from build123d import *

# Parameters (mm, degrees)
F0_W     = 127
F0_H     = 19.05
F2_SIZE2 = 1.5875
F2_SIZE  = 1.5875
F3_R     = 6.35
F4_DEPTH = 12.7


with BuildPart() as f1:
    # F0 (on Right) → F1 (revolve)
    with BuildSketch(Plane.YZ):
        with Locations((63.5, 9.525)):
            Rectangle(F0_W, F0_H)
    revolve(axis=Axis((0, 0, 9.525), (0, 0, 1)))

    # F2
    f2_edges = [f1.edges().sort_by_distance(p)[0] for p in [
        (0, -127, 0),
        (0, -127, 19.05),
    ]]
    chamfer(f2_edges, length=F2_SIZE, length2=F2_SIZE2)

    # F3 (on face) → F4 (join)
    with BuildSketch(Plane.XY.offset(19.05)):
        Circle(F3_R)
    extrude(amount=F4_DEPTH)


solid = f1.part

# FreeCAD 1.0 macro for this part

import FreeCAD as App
import Part
import Sketcher
Q = App.Units.Quantity


def edges_at(feature, points):
    """Names of the edges that pass closest to the given points."""
    edges = feature.Shape.Edges
    near = lambda p: min(range(len(edges)), key=lambda i: edges[i].distToShape(Part.Vertex(*p))[0])
    return sorted({f"Edge{near(p) + 1}" for p in points})

doc = App.newDocument("Part")
body = doc.addObject("PartDesign::Body", "Body")

# Sketch on YZ plane
sketch1 = body.newObject("Sketcher::SketchObject", "Sketch")
sketch1.AttachmentSupport = (doc.getObject("YZ_Plane"), [""])
sketch1.MapMode = "FlatFace"
sketch1.addGeometry(Part.LineSegment(App.Vector(0, 19, 0), App.Vector(0, 0, 0)), False)
sketch1.addGeometry(Part.LineSegment(App.Vector(0, 0, 0), App.Vector(127, 0, 0)), False)
sketch1.addGeometry(Part.LineSegment(App.Vector(127, 0, 0), App.Vector(127, 19, 0)), False)
sketch1.addGeometry(Part.LineSegment(App.Vector(127, 19, 0), App.Vector(0, 19, 0)), False)
sketch1.addConstraint(Sketcher.Constraint("Coincident", 0, 2, 1, 1))
sketch1.addConstraint(Sketcher.Constraint("Coincident", 1, 2, 2, 1))
sketch1.addConstraint(Sketcher.Constraint("Coincident", 2, 2, 3, 1))
sketch1.addConstraint(Sketcher.Constraint("Coincident", 3, 2, 0, 1))
sketch1.addConstraint(Sketcher.Constraint("Vertical", 0))
sketch1.addConstraint(Sketcher.Constraint("Horizontal", 1))
sketch1.addConstraint(Sketcher.Constraint("Vertical", 2))
sketch1.addConstraint(Sketcher.Constraint("Horizontal", 3))
sketch1.addConstraint(Sketcher.Constraint("Coincident", 0, 2, -1, 1))
sketch1.addConstraint(Sketcher.Constraint("DistanceX", 1, 1, 1, 2, Q("5 in")))
sketch1.addConstraint(Sketcher.Constraint("DistanceY", 0, 2, 0, 1, Q("0.75 in")))
revolution = body.newObject("PartDesign::Revolution", "Revolution")
revolution.Profile = sketch1
revolution.ReferenceAxis = (sketch1, ["V_Axis"])
revolution.Angle = 360
doc.recompute()

chamfer = body.newObject("PartDesign::Chamfer", "Chamfer")
chamfer.Base = (revolution, edges_at(revolution, [(0, -127, 0), (0, -127, 19.05)]))
chamfer.ChamferType = "Two distances"
chamfer.Size = Q("0.0625 in")
chamfer.Size2 = Q("0.0625 in")

# Sketch on XY plane
sketch2 = body.newObject("Sketcher::SketchObject", "Sketch001")
sketch2.AttachmentSupport = (doc.getObject("XY_Plane"), [""])
sketch2.MapMode = "FlatFace"
sketch2.AttachmentOffset = App.Placement(App.Vector(0, 0, 0.75 * 25.4), App.Rotation())
sketch2.addGeometry(Part.Circle(App.Vector(0, 0, 0), App.Vector(0, 0, 1), 6), False)
sketch2.addConstraint(Sketcher.Constraint("Coincident", 0, 3, -1, 1))
sketch2.addConstraint(Sketcher.Constraint("Diameter", 0, Q("0.5 in")))
pad1 = body.newObject("PartDesign::Pad", "Pad")
pad1.Profile = sketch2
pad1.Length = Q("0.5 in")

doc.recompute()
